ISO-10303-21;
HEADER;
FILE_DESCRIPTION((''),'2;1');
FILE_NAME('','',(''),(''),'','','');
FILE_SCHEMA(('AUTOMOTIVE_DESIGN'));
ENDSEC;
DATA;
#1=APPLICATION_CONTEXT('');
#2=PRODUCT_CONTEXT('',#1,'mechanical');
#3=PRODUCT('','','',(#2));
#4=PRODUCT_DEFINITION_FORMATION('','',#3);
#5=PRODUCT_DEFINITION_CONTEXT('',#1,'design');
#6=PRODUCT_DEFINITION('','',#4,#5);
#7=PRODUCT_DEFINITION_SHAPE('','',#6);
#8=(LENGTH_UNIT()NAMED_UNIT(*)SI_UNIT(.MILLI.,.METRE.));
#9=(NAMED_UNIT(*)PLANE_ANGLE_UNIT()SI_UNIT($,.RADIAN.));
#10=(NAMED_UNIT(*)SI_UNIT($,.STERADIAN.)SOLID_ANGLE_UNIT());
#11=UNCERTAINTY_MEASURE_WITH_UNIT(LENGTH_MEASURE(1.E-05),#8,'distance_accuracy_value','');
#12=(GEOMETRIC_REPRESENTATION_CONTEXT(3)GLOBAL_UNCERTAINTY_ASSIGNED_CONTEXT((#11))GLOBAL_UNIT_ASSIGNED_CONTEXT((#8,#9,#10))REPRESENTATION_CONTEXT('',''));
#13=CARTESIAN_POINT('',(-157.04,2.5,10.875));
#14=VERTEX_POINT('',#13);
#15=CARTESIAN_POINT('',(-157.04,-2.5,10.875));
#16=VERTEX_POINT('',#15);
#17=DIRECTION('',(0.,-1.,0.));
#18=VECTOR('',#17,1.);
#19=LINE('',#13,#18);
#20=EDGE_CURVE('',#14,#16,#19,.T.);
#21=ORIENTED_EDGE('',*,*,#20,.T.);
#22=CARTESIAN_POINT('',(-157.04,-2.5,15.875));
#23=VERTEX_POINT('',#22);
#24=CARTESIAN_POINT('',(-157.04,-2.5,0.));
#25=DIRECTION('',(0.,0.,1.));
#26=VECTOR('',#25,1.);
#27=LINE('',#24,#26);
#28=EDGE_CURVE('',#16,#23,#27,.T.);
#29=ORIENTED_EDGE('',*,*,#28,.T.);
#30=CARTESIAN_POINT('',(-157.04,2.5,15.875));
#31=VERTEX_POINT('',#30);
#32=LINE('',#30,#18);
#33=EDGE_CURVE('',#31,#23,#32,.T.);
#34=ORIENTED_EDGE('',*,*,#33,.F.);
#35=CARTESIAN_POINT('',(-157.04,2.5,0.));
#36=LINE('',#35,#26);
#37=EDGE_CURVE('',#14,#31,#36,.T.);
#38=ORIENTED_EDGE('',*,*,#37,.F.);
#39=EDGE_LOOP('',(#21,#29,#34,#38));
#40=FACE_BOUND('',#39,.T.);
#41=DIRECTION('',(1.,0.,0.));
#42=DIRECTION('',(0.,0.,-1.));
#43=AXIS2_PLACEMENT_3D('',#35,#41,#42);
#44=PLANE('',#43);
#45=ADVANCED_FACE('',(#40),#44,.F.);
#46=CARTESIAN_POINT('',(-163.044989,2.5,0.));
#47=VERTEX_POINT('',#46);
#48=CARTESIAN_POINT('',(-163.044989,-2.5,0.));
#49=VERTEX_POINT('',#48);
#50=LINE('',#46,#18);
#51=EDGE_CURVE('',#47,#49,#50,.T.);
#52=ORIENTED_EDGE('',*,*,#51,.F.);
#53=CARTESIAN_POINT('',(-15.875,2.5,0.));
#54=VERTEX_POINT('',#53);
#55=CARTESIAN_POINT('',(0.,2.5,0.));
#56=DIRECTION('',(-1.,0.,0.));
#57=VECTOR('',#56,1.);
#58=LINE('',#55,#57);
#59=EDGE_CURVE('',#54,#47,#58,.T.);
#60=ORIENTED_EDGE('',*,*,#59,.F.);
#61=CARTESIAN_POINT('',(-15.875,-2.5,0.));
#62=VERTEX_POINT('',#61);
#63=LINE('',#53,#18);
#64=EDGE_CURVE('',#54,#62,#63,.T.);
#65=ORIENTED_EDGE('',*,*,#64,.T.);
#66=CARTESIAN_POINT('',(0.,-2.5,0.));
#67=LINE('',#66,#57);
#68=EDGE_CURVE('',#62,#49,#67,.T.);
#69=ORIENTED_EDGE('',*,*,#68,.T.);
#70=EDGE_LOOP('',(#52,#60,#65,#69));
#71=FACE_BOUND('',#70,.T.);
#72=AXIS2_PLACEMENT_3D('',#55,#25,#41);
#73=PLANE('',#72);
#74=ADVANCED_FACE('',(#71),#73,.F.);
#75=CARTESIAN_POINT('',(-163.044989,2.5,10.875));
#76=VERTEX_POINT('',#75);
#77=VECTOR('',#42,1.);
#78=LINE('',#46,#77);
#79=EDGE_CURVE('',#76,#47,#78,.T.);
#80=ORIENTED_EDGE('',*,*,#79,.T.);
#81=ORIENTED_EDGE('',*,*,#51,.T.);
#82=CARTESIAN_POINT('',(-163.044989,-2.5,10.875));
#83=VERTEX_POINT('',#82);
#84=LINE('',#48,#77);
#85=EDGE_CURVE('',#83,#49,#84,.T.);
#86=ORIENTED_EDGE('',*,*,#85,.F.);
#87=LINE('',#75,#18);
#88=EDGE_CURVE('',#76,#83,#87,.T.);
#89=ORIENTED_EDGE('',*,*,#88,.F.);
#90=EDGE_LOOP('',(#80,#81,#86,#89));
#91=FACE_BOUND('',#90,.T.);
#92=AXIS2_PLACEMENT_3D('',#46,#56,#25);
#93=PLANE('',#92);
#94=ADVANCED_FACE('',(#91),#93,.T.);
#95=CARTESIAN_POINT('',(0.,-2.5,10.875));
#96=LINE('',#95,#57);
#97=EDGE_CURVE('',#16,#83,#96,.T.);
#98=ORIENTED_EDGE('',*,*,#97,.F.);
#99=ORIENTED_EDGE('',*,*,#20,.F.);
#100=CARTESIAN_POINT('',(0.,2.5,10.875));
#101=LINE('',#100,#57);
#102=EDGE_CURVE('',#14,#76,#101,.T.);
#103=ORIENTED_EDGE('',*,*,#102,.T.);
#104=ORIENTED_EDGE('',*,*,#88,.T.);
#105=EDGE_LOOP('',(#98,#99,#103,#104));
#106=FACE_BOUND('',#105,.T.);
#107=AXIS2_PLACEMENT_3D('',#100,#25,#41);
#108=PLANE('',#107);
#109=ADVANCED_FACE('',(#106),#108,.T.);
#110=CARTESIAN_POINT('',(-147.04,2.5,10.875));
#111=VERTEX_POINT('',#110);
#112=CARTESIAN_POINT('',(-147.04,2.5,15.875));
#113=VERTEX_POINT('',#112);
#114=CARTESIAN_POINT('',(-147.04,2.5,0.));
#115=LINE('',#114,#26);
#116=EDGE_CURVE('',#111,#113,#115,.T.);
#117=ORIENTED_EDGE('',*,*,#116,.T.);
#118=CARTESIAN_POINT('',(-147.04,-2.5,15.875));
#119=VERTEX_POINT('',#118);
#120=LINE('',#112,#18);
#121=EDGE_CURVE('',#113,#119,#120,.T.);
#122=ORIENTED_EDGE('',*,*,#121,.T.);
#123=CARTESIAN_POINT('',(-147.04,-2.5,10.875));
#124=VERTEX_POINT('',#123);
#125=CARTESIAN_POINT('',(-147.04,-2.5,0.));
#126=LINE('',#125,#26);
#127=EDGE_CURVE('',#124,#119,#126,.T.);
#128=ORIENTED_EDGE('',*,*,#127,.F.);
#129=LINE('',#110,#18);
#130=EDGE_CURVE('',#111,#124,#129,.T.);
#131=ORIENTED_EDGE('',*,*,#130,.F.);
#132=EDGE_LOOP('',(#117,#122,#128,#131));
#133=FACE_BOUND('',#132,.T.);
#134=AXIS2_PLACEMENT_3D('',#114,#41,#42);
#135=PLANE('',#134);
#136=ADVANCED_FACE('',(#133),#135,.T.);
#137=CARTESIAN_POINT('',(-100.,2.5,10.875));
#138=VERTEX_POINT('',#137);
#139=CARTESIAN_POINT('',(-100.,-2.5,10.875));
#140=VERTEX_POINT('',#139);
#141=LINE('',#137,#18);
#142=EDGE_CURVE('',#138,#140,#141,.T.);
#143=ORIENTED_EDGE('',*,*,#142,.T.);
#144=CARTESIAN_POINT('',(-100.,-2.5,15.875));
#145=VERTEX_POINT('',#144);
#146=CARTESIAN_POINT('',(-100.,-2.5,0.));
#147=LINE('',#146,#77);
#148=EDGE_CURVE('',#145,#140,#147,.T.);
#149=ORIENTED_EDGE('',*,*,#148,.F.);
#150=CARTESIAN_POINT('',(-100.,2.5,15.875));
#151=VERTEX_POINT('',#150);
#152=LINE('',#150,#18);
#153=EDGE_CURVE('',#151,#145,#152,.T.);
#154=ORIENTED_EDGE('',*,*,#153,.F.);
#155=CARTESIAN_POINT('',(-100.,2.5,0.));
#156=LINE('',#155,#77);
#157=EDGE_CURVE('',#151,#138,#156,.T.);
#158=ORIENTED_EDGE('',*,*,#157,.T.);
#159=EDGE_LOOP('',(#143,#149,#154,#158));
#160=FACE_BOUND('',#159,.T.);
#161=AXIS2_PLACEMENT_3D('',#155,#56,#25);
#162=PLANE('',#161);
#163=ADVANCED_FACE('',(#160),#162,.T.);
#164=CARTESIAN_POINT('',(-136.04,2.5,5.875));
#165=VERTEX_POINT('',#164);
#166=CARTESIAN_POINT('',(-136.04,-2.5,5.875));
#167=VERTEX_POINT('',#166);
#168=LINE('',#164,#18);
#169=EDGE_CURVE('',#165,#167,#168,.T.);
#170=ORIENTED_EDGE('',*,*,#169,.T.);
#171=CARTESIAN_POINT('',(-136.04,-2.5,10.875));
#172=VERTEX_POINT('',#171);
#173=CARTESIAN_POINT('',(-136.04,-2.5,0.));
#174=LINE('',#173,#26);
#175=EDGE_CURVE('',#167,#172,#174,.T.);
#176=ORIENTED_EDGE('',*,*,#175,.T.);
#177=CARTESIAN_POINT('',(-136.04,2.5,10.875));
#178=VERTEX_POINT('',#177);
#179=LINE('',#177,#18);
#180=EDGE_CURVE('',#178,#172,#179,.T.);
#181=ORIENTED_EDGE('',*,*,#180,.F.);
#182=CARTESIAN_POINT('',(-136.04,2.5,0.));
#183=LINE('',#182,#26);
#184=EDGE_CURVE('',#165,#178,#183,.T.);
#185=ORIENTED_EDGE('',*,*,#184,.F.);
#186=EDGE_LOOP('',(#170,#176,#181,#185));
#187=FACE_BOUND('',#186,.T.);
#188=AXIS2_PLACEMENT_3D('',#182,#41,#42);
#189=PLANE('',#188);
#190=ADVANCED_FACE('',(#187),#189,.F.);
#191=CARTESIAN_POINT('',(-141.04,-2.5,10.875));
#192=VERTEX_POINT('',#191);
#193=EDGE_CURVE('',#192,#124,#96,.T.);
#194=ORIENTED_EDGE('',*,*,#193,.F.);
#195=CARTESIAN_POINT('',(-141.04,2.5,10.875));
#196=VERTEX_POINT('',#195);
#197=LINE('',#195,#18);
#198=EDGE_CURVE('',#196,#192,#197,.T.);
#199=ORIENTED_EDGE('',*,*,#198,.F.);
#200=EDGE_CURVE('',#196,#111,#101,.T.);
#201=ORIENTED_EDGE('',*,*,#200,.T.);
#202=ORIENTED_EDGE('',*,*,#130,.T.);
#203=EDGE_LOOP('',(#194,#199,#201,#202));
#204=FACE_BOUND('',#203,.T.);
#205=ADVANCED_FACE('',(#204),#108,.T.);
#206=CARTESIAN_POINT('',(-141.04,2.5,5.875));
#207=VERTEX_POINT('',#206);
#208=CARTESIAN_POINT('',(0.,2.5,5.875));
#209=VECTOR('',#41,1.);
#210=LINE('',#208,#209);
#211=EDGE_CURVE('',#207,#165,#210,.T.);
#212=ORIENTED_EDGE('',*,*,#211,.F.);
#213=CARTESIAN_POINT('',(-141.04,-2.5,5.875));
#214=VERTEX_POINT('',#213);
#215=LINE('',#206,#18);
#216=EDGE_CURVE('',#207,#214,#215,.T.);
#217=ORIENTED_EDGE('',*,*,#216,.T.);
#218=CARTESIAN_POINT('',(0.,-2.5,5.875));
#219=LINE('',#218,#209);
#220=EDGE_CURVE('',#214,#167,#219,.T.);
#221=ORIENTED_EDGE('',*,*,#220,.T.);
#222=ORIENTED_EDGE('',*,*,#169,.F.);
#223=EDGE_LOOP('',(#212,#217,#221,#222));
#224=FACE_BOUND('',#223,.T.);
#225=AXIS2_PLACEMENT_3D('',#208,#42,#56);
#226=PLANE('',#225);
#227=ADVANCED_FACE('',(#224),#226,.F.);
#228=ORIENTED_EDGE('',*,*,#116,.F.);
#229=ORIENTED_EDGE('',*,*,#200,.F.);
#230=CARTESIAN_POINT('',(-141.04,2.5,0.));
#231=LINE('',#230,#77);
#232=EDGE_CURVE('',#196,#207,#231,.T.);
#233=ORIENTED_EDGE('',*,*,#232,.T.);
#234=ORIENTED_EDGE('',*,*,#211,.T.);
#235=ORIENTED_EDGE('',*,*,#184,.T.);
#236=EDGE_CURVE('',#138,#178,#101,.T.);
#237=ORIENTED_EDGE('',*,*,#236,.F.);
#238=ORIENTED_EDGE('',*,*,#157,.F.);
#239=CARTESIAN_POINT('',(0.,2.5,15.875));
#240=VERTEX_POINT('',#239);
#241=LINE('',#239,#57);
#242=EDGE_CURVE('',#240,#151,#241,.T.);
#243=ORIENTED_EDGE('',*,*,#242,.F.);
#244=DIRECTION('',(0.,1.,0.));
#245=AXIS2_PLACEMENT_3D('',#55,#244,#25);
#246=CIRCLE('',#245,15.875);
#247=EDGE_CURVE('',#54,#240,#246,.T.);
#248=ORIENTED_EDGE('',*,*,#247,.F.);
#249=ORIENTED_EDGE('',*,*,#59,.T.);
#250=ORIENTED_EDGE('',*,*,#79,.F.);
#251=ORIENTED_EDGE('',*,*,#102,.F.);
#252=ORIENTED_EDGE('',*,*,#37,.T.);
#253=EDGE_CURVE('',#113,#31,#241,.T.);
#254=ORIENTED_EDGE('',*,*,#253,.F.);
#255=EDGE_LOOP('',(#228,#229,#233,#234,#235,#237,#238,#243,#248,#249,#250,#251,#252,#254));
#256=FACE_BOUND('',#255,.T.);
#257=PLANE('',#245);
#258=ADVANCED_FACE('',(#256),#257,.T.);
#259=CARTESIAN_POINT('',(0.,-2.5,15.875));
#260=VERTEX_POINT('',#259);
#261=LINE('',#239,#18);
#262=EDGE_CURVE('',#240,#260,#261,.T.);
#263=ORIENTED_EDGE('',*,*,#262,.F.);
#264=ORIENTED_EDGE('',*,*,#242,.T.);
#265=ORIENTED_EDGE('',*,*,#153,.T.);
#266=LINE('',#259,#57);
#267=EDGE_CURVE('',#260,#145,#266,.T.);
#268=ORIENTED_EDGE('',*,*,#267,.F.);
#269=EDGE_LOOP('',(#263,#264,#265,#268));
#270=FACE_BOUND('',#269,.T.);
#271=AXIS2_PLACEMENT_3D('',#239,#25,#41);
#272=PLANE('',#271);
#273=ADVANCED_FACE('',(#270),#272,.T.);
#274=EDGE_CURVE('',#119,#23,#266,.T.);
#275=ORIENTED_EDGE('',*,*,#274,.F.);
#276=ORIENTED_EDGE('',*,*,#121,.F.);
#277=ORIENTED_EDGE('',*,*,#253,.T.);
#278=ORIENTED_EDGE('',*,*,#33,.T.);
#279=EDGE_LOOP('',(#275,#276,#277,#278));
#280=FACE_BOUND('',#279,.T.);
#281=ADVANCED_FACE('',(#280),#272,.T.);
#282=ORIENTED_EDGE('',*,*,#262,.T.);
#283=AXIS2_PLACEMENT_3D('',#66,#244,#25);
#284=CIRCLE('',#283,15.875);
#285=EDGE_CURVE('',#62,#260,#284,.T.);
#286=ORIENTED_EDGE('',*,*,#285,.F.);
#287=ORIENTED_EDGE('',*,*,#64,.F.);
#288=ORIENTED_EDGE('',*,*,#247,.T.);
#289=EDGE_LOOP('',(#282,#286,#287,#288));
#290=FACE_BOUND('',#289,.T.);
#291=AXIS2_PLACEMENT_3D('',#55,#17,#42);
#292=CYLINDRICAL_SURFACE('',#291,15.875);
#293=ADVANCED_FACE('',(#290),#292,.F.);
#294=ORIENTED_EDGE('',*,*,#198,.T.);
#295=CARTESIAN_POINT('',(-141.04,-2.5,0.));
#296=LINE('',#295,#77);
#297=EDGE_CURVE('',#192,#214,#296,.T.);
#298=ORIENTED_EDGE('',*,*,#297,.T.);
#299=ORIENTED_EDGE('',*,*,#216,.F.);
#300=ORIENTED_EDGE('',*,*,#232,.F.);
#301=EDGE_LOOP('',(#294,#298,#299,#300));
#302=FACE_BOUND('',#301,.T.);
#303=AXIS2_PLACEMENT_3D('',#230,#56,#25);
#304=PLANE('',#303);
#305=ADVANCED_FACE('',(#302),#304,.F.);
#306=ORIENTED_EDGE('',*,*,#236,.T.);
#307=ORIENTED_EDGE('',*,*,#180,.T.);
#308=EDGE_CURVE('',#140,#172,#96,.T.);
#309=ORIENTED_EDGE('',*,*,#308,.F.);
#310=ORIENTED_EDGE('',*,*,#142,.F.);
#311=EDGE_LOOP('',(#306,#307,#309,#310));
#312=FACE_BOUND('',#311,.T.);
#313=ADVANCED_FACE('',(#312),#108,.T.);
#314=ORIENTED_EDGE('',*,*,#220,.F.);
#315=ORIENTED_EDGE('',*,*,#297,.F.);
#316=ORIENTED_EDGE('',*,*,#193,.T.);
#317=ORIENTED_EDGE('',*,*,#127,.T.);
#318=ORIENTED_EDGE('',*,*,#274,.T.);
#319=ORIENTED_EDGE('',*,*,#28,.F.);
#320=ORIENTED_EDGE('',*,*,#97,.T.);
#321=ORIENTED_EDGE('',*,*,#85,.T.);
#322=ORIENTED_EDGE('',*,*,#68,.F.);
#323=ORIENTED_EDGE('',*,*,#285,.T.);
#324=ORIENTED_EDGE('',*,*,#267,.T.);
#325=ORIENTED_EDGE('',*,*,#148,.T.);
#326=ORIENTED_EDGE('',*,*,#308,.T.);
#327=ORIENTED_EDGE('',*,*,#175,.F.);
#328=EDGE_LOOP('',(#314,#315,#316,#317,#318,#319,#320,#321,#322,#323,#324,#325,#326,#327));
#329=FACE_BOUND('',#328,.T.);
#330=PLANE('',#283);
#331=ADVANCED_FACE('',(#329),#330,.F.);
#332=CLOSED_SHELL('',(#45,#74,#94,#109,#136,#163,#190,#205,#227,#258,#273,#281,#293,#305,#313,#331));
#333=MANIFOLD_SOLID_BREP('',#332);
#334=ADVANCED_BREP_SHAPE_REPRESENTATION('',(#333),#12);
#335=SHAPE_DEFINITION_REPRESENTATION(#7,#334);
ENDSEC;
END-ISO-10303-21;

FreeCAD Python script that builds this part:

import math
import FreeCAD as App
import Part
import Sketcher

V = App.Vector

doc = App.newDocument("Part")
body = doc.addObject("PartDesign::Body", "Body")

# Sketch on XZ plane
sketch1 = body.newObject("Sketcher::SketchObject", "Sketch")
sketch1.AttachmentSupport = (doc.getObject("XZ_Plane"), [""])
sketch1.MapMode = "FlatFace"
sketch1.addGeometry([
    Part.ArcOfCircle(Part.Circle(V(0, 0, 0), V(0, 0, 1), 16), math.radians(90), math.radians(180)),  # 0
    Part.LineSegment(V(-16, 0, 0), V(-163, 0, 0)),  # 1
    Part.LineSegment(V(-163, 0, 0), V(-163, 11, 0)),  # 2
    Part.LineSegment(V(-163, 11, 0), V(-157, 11, 0)),  # 3
    Part.LineSegment(V(-157, 11, 0), V(-157, 16, 0)),  # 4
    Part.LineSegment(V(-157, 16, 0), V(-147, 16, 0)),  # 5
    Part.LineSegment(V(-147, 16, 0), V(-147, 11, 0)),  # 6
    Part.LineSegment(V(-147, 11, 0), V(-141, 11, 0)),  # 7
    Part.LineSegment(V(-141, 11, 0), V(-141, 6, 0)),  # 8
    Part.LineSegment(V(-141, 6, 0), V(-136, 6, 0)),  # 9
    Part.LineSegment(V(-136, 6, 0), V(-136, 11, 0)),  # 10
    Part.LineSegment(V(-136, 11, 0), V(-100, 11, 0)),  # 11
    Part.LineSegment(V(-100, 11, 0), V(-100, 16, 0)),  # 12
    Part.LineSegment(V(-100, 16, 0), V(0, 16, 0)),  # 13
], False)
sketch1.addConstraint([
    Sketcher.Constraint("Coincident", 0, 2, 1, 1),
    Sketcher.Constraint("Coincident", 1, 2, 2, 1),
    Sketcher.Constraint("Coincident", 2, 2, 3, 1),
    Sketcher.Constraint("Coincident", 3, 2, 4, 1),
    Sketcher.Constraint("Coincident", 4, 2, 5, 1),
    Sketcher.Constraint("Coincident", 5, 2, 6, 1),
    Sketcher.Constraint("Coincident", 6, 2, 7, 1),
    Sketcher.Constraint("Coincident", 7, 2, 8, 1),
    Sketcher.Constraint("Coincident", 8, 2, 9, 1),
    Sketcher.Constraint("Coincident", 9, 2, 10, 1),
    Sketcher.Constraint("Coincident", 10, 2, 11, 1),
    Sketcher.Constraint("Coincident", 11, 2, 12, 1),
    Sketcher.Constraint("Coincident", 12, 2, 13, 1),
    Sketcher.Constraint("Tangent", 13, 2, 0, 1),
    Sketcher.Constraint("Horizontal", 1),
    Sketcher.Constraint("Vertical", 2),
    Sketcher.Constraint("Horizontal", 3),
    Sketcher.Constraint("Vertical", 4),
    Sketcher.Constraint("Horizontal", 5),
    Sketcher.Constraint("Vertical", 6),
    Sketcher.Constraint("Horizontal", 7),
    Sketcher.Constraint("Vertical", 8),
    Sketcher.Constraint("Horizontal", 9),
    Sketcher.Constraint("Vertical", 10),
    Sketcher.Constraint("Horizontal", 11),
    Sketcher.Constraint("Vertical", 12),
    Sketcher.Constraint("Horizontal", 13),
    Sketcher.Constraint("Coincident", 0, 3, -1, 1),
    Sketcher.Constraint("PointOnObject", 0, 2, -1),
    Sketcher.Constraint("Horizontal", 3, 2, 6, 2),
    Sketcher.Constraint("Horizontal", 7, 2, 10, 2),
    Sketcher.Constraint("Horizontal", 5, 2, 12, 2),
    Sketcher.Constraint("Equal", 9, 4),
    Sketcher.Constraint("Equal", 6, 8),
    Sketcher.Constraint("DistanceX", 5, 1, 5, 2, 10.0),
    Sketcher.Constraint("DistanceX", 7, 1, 7, 2, 6.0),
    Sketcher.Constraint("DistanceX", 9, 1, 9, 2, 5.0),
    Sketcher.Constraint("DistanceX", 13, 1, 13, 2, 100.0),
    Sketcher.Constraint("Radius", 0, 15.875),
    Sketcher.Constraint("DistanceX", 11, 1, 11, 2, 36.04),
    Sketcher.Constraint("DistanceX", 1, 2, 1, 1, 147.169989),
])
pad1 = body.newObject("PartDesign::Pad", "Pad")
pad1.Profile = sketch1
pad1.Length = 5
pad1.Midplane = True

doc.recompute()
